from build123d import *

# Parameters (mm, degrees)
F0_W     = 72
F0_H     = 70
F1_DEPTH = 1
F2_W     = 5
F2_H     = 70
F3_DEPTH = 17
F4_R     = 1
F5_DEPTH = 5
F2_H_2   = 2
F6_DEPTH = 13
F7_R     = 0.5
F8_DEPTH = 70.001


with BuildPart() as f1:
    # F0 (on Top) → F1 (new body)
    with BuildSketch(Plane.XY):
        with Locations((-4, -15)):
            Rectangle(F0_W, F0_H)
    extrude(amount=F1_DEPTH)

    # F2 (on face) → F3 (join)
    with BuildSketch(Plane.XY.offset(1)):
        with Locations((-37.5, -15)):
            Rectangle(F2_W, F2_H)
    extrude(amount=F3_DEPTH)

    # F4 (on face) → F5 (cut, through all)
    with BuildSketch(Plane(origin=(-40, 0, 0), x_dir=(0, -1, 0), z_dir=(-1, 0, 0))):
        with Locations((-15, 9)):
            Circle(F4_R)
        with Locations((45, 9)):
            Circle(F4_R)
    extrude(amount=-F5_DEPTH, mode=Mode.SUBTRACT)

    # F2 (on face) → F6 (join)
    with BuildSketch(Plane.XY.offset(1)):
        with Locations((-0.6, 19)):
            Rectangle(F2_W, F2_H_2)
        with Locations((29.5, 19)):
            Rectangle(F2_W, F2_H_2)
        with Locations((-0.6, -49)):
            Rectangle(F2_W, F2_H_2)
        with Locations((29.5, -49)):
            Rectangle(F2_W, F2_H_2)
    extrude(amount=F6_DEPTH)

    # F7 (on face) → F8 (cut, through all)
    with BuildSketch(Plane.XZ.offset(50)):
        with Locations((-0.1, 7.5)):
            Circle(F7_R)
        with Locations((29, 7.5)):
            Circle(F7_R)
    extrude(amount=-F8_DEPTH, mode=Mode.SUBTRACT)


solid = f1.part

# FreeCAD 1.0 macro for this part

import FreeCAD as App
import Part
import Sketcher

V = App.Vector
Q = App.Units.Quantity

doc = App.newDocument("Part")
params = doc.addObject("Spreadsheet::Sheet", "Params")
for row, (alias, value) in enumerate([
    ("sketch1_width", "72 mm"),
    ("sketch1_height", "70 mm"),
    ("pad1_length", "1 mm"),
    ("sketch2_width", "5 mm"),
    ("sketch2_height", "70 mm"),
    ("pad2_length", "17 mm"),
    ("sketch3_diameter", "2 mm"),
    ("sketch4_width", "5 mm"),
    ("sketch4_height", "2 mm"),
    ("pad3_length", "13 mm"),
    ("sketch5_diameter", "1 mm"),
], start=1):
    params.set(f"A{row}", alias)
    params.set(f"B{row}", "=" + value)
    params.setAlias(f"B{row}", alias)

body = doc.addObject("PartDesign::Body", "Body")

sketch1 = body.newObject("Sketcher::SketchObject", "Sketch")
sketch1.AttachmentSupport = (doc.getObject("XY_Plane"), [""])
sketch1.MapMode = "FlatFace"
sketch1.addGeometry([
    Part.LineSegment(V(-40, 20, 0), V(-40, -50, 0)),
    Part.LineSegment(V(-40, -50, 0), V(32, -50, 0)),
    Part.LineSegment(V(32, -50, 0), V(32, 20, 0)),
    Part.LineSegment(V(32, 20, 0), V(-40, 20, 0)),
], False)
sketch1.addConstraint([
    Sketcher.Constraint("Coincident", 0, 2, 1, 1),
    Sketcher.Constraint("Coincident", 1, 2, 2, 1),
    Sketcher.Constraint("Coincident", 2, 2, 3, 1),
    Sketcher.Constraint("Coincident", 3, 2, 0, 1),
    Sketcher.Constraint("Vertical", 0),
    Sketcher.Constraint("Horizontal", 1),
    Sketcher.Constraint("Vertical", 2),
    Sketcher.Constraint("Horizontal", 3),
    Sketcher.Constraint("DistanceX", 1, 1, 1, 2, Q("72 mm")),
    Sketcher.Constraint("DistanceY", 0, 2, 0, 1, Q("70 mm")),
    Sketcher.Constraint("DistanceX", 0, 2, -1, 1, Q("40 mm")),
    Sketcher.Constraint("DistanceY", 0, 2, -1, 1, Q("50 mm")),
])
sketch1.setExpression("Constraints[8]", "Params.sketch1_width")
sketch1.setExpression("Constraints[9]", "Params.sketch1_height")
pad1 = body.newObject("PartDesign::Pad", "Pad")
pad1.Profile = sketch1
pad1.setExpression("Length", "Params.pad1_length")

sketch2 = body.newObject("Sketcher::SketchObject", "Sketch001")
sketch2.AttachmentSupport = (doc.getObject("XY_Plane"), [""])
sketch2.MapMode = "FlatFace"
sketch2.AttachmentOffset = App.Placement(V(0, 0, 1), App.Rotation())
sketch2.addGeometry([
    Part.LineSegment(V(-40, 20, 0), V(-40, -50, 0)),
    Part.LineSegment(V(-40, -50, 0), V(-35, -50, 0)),
    Part.LineSegment(V(-35, -50, 0), V(-35, 20, 0)),
    Part.LineSegment(V(-35, 20, 0), V(-40, 20, 0)),
], False)
sketch2.addConstraint([
    Sketcher.Constraint("Coincident", 0, 2, 1, 1),
    Sketcher.Constraint("Coincident", 1, 2, 2, 1),
    Sketcher.Constraint("Coincident", 2, 2, 3, 1),
    Sketcher.Constraint("Coincident", 3, 2, 0, 1),
    Sketcher.Constraint("Vertical", 0),
    Sketcher.Constraint("Horizontal", 1),
    Sketcher.Constraint("Vertical", 2),
    Sketcher.Constraint("Horizontal", 3),
    Sketcher.Constraint("DistanceX", 1, 1, 1, 2, Q("5 mm")),
    Sketcher.Constraint("DistanceY", 0, 2, 0, 1, Q("70 mm")),
    Sketcher.Constraint("DistanceX", 0, 2, -1, 1, Q("40 mm")),
    Sketcher.Constraint("DistanceY", 0, 2, -1, 1, Q("50 mm")),
])
sketch2.setExpression("Constraints[8]", "Params.sketch2_width")
sketch2.setExpression("Constraints[9]", "Params.sketch2_height")
pad2 = body.newObject("PartDesign::Pad", "Pad001")
pad2.Profile = sketch2
pad2.setExpression("Length", "Params.pad2_length")

sketch3 = body.newObject("Sketcher::SketchObject", "Sketch002")
sketch3.AttachmentSupport = (doc.getObject("YZ_Plane"), [""])
sketch3.MapMode = "FlatFace"
sketch3.AttachmentOffset = App.Placement(V(0, 0, -40), App.Rotation())
sketch3.addGeometry([
    Part.Circle(V(15, 9, 0), V(0, 0, 1), 1),
    Part.Circle(V(-45, 9, 0), V(0, 0, 1), 1),
], False)
sketch3.addConstraint([
    Sketcher.Constraint("Equal", 0, 1),
    Sketcher.Constraint("Horizontal", 0, 3, 1, 3),
    Sketcher.Constraint("Diameter", 0, Q("2 mm")),
    Sketcher.Constraint("DistanceX", -1, 1, 0, 3, Q("15 mm")),
    Sketcher.Constraint("DistanceY", -1, 1, 0, 3, Q("9 mm")),
    Sketcher.Constraint("DistanceX", 1, 3, -1, 1, Q("45 mm")),
])
sketch3.setExpression("Constraints[2]", "Params.sketch3_diameter")
pocket1 = body.newObject("PartDesign::Pocket", "Pocket")
pocket1.Profile = sketch3
pocket1.Type = "ThroughAll"
pocket1.Reversed = True

sketch4 = body.newObject("Sketcher::SketchObject", "Sketch003")
sketch4.AttachmentSupport = (doc.getObject("XY_Plane"), [""])
sketch4.MapMode = "FlatFace"
sketch4.AttachmentOffset = App.Placement(V(0, 0, 1), App.Rotation())
sketch4.addGeometry([
    Part.LineSegment(V(-3.1, 20, 0), V(-3.1, 18, 0)),
    Part.LineSegment(V(-3.1, 18, 0), V(1.9, 18, 0)),
    Part.LineSegment(V(1.9, 18, 0), V(1.9, 20, 0)),
    Part.LineSegment(V(1.9, 20, 0), V(-3.1, 20, 0)),
    Part.LineSegment(V(27, 20, 0), V(27, 18, 0)),
    Part.LineSegment(V(27, 18, 0), V(32, 18, 0)),
    Part.LineSegment(V(32, 18, 0), V(32, 20, 0)),
    Part.LineSegment(V(32, 20, 0), V(27, 20, 0)),
    Part.LineSegment(V(-3.1, -48, 0), V(-3.1, -50, 0)),
    Part.LineSegment(V(-3.1, -50, 0), V(1.9, -50, 0)),
    Part.LineSegment(V(1.9, -50, 0), V(1.9, -48, 0)),
    Part.LineSegment(V(1.9, -48, 0), V(-3.1, -48, 0)),
    Part.LineSegment(V(27, -48, 0), V(27, -50, 0)),
    Part.LineSegment(V(27, -50, 0), V(32, -50, 0)),
    Part.LineSegment(V(32, -50, 0), V(32, -48, 0)),
    Part.LineSegment(V(32, -48, 0), V(27, -48, 0)),
], False)
sketch4.addConstraint([
    Sketcher.Constraint("Coincident", 0, 2, 1, 1),
    Sketcher.Constraint("Coincident", 1, 2, 2, 1),
    Sketcher.Constraint("Coincident", 2, 2, 3, 1),
    Sketcher.Constraint("Coincident", 3, 2, 0, 1),
    Sketcher.Constraint("Coincident", 4, 2, 5, 1),
    Sketcher.Constraint("Coincident", 5, 2, 6, 1),
    Sketcher.Constraint("Coincident", 6, 2, 7, 1),
    Sketcher.Constraint("Coincident", 7, 2, 4, 1),
    Sketcher.Constraint("Coincident", 8, 2, 9, 1),
    Sketcher.Constraint("Coincident", 9, 2, 10, 1),
    Sketcher.Constraint("Coincident", 10, 2, 11, 1),
    Sketcher.Constraint("Coincident", 11, 2, 8, 1),
    Sketcher.Constraint("Coincident", 12, 2, 13, 1),
    Sketcher.Constraint("Coincident", 13, 2, 14, 1),
    Sketcher.Constraint("Coincident", 14, 2, 15, 1),
    Sketcher.Constraint("Coincident", 15, 2, 12, 1),
    Sketcher.Constraint("Vertical", 0),
    Sketcher.Constraint("Horizontal", 1),
    Sketcher.Constraint("Vertical", 2),
    Sketcher.Constraint("Horizontal", 3),
    Sketcher.Constraint("Vertical", 4),
    Sketcher.Constraint("Horizontal", 5),
    Sketcher.Constraint("Vertical", 6),
    Sketcher.Constraint("Horizontal", 7),
    Sketcher.Constraint("Vertical", 8),
    Sketcher.Constraint("Horizontal", 9),
    Sketcher.Constraint("Vertical", 10),
    Sketcher.Constraint("Horizontal", 11),
    Sketcher.Constraint("Vertical", 12),
    Sketcher.Constraint("Horizontal", 13),
    Sketcher.Constraint("Vertical", 14),
    Sketcher.Constraint("Horizontal", 15),
    Sketcher.Constraint("Horizontal", 1, 2, 4, 2),
    Sketcher.Constraint("Horizontal", 3, 2, 6, 2),
    Sketcher.Constraint("Horizontal", 9, 2, 12, 2),
    Sketcher.Constraint("Horizontal", 11, 2, 14, 2),
    Sketcher.Constraint("Vertical", 3, 2, 8, 2),
    Sketcher.Constraint("Vertical", 2, 2, 9, 2),
    Sketcher.Constraint("Vertical", 7, 2, 12, 2),
    Sketcher.Constraint("Vertical", 6, 2, 13, 2),
    Sketcher.Constraint("Equal", 3, 5),
    Sketcher.Constraint("Equal", 6, 8),
    Sketcher.Constraint("DistanceX", 1, 1, 1, 2, Q("5 mm")),
    Sketcher.Constraint("DistanceY", 0, 2, 0, 1, Q("2 mm")),
    Sketcher.Constraint("DistanceY", -1, 1, 0, 2, Q("18 mm")),
    Sketcher.Constraint("DistanceX", -1, 1, 4, 2, Q("27 mm")),
    Sketcher.Constraint("DistanceY", 8, 2, -1, 1, Q("50 mm")),
    Sketcher.Constraint("DistanceX", 0, 2, -1, 1, Q("3.1 mm")),
])
sketch4.setExpression("Constraints[42]", "Params.sketch4_width")
sketch4.setExpression("Constraints[43]", "Params.sketch4_height")
pad3 = body.newObject("PartDesign::Pad", "Pad002")
pad3.Profile = sketch4
pad3.setExpression("Length", "Params.pad3_length")

sketch5 = body.newObject("Sketcher::SketchObject", "Sketch004")
sketch5.AttachmentSupport = (doc.getObject("XZ_Plane"), [""])
sketch5.MapMode = "FlatFace"
sketch5.AttachmentOffset = App.Placement(V(0, 0, 50), App.Rotation())
sketch5.addGeometry([
    Part.Circle(V(-0.1, 7.5, 0), V(0, 0, 1), 0.5),
    Part.Circle(V(29, 7.5, 0), V(0, 0, 1), 0.5),
], False)
sketch5.addConstraint([
    Sketcher.Constraint("Equal", 0, 1),
    Sketcher.Constraint("Horizontal", 0, 3, 1, 3),
    Sketcher.Constraint("Diameter", 0, Q("1 mm")),
    Sketcher.Constraint("DistanceX", -1, 1, 1, 3, Q("29 mm")),
    Sketcher.Constraint("DistanceX", 0, 3, -1, 1, Q("0.1 mm")),
    Sketcher.Constraint("DistanceY", -1, 1, 0, 3, Q("7.5 mm")),
])
sketch5.setExpression("Constraints[2]", "Params.sketch5_diameter")
pocket2 = body.newObject("PartDesign::Pocket", "Pocket001")
pocket2.Profile = sketch5
pocket2.Type = "ThroughAll"

doc.recompute()
